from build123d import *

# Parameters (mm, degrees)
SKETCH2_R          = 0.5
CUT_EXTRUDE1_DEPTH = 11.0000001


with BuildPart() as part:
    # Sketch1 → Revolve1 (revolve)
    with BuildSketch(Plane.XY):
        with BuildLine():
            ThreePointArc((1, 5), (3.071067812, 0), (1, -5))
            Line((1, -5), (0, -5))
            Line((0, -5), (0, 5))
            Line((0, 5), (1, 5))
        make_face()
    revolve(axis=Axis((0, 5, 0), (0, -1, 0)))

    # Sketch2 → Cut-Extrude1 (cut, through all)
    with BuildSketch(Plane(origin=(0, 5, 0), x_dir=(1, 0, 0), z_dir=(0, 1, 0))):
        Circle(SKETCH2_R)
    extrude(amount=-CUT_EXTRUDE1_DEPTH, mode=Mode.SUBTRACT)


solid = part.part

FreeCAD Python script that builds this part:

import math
import FreeCAD as App
import Part
import Sketcher
from FreeCAD import Vector
Q = App.Units.Quantity

doc = App.newDocument("Part")
body = doc.addObject("PartDesign::Body", "Body")

sketch1 = doc.addObject("Sketcher::SketchObject", "Sketch")
body.addObject(sketch1)
sketch1.AttachmentSupport = (doc.XY_Plane, [""])
sketch1.MapMode = "FlatFace"
sketch1.addGeometry(Part.ArcOfCircle(Part.Circle(Vector(-4, 0, 0), Vector(0, 0, 1), 7.1), math.radians(-45), math.radians(45)), False)
sketch1.addGeometry(Part.LineSegment(Vector(1, 5, 0), Vector(0, 5, 0)), False)
sketch1.addGeometry(Part.LineSegment(Vector(0, 5, 0), Vector(0, -5, 0)), False)
sketch1.addGeometry(Part.LineSegment(Vector(0, -5, 0), Vector(1, -5, 0)), False)
sketch1.addConstraint(Sketcher.Constraint("Coincident", 0, 2, 1, 1))
sketch1.addConstraint(Sketcher.Constraint("Coincident", 1, 2, 2, 1))
sketch1.addConstraint(Sketcher.Constraint("Coincident", 2, 2, 3, 1))
sketch1.addConstraint(Sketcher.Constraint("Coincident", 3, 2, 0, 1))
sketch1.addConstraint(Sketcher.Constraint("Horizontal", 1))
sketch1.addConstraint(Sketcher.Constraint("Vertical", 2))
sketch1.addConstraint(Sketcher.Constraint("Horizontal", 3))
sketch1.addConstraint(Sketcher.Constraint("Symmetric", 1, 2, 2, 2, -1, 1))
sketch1.addConstraint(Sketcher.Constraint("PointOnObject", 0, 3, -1))
sketch1.addConstraint(Sketcher.Constraint("DistanceX", 1, 2, 1, 1, Q("1 mm")))
sketch1.addConstraint(Sketcher.Constraint("DistanceY", 2, 2, 2, 1, Q("10 mm")))
sketch1.addConstraint(Sketcher.Constraint("DistanceX", 0, 3, -1, 1, Q("4 mm")))
revolution = doc.addObject("PartDesign::Revolution", "Revolution")
body.addObject(revolution)
revolution.Profile = sketch1
revolution.ReferenceAxis = (sketch1, ["V_Axis"])
revolution.Angle = 360

sketch2 = doc.addObject("Sketcher::SketchObject", "Sketch001")
body.addObject(sketch2)
sketch2.AttachmentSupport = (doc.XZ_Plane, [""])
sketch2.MapMode = "FlatFace"
sketch2.AttachmentOffset = App.Placement(Vector(0, 0, -5), App.Rotation())
sketch2.addGeometry(Part.Circle(Vector(0, 0, 0), Vector(0, 0, 1), 0.5), False)
sketch2.addConstraint(Sketcher.Constraint("Coincident", 0, 3, -1, 1))
sketch2.addConstraint(Sketcher.Constraint("Diameter", 0, Q("1 mm")))
pocket1 = doc.addObject("PartDesign::Pocket", "Pocket")
body.addObject(pocket1)
pocket1.Profile = sketch2
pocket1.Type = "ThroughAll"
pocket1.Reversed = True

doc.recompute()
